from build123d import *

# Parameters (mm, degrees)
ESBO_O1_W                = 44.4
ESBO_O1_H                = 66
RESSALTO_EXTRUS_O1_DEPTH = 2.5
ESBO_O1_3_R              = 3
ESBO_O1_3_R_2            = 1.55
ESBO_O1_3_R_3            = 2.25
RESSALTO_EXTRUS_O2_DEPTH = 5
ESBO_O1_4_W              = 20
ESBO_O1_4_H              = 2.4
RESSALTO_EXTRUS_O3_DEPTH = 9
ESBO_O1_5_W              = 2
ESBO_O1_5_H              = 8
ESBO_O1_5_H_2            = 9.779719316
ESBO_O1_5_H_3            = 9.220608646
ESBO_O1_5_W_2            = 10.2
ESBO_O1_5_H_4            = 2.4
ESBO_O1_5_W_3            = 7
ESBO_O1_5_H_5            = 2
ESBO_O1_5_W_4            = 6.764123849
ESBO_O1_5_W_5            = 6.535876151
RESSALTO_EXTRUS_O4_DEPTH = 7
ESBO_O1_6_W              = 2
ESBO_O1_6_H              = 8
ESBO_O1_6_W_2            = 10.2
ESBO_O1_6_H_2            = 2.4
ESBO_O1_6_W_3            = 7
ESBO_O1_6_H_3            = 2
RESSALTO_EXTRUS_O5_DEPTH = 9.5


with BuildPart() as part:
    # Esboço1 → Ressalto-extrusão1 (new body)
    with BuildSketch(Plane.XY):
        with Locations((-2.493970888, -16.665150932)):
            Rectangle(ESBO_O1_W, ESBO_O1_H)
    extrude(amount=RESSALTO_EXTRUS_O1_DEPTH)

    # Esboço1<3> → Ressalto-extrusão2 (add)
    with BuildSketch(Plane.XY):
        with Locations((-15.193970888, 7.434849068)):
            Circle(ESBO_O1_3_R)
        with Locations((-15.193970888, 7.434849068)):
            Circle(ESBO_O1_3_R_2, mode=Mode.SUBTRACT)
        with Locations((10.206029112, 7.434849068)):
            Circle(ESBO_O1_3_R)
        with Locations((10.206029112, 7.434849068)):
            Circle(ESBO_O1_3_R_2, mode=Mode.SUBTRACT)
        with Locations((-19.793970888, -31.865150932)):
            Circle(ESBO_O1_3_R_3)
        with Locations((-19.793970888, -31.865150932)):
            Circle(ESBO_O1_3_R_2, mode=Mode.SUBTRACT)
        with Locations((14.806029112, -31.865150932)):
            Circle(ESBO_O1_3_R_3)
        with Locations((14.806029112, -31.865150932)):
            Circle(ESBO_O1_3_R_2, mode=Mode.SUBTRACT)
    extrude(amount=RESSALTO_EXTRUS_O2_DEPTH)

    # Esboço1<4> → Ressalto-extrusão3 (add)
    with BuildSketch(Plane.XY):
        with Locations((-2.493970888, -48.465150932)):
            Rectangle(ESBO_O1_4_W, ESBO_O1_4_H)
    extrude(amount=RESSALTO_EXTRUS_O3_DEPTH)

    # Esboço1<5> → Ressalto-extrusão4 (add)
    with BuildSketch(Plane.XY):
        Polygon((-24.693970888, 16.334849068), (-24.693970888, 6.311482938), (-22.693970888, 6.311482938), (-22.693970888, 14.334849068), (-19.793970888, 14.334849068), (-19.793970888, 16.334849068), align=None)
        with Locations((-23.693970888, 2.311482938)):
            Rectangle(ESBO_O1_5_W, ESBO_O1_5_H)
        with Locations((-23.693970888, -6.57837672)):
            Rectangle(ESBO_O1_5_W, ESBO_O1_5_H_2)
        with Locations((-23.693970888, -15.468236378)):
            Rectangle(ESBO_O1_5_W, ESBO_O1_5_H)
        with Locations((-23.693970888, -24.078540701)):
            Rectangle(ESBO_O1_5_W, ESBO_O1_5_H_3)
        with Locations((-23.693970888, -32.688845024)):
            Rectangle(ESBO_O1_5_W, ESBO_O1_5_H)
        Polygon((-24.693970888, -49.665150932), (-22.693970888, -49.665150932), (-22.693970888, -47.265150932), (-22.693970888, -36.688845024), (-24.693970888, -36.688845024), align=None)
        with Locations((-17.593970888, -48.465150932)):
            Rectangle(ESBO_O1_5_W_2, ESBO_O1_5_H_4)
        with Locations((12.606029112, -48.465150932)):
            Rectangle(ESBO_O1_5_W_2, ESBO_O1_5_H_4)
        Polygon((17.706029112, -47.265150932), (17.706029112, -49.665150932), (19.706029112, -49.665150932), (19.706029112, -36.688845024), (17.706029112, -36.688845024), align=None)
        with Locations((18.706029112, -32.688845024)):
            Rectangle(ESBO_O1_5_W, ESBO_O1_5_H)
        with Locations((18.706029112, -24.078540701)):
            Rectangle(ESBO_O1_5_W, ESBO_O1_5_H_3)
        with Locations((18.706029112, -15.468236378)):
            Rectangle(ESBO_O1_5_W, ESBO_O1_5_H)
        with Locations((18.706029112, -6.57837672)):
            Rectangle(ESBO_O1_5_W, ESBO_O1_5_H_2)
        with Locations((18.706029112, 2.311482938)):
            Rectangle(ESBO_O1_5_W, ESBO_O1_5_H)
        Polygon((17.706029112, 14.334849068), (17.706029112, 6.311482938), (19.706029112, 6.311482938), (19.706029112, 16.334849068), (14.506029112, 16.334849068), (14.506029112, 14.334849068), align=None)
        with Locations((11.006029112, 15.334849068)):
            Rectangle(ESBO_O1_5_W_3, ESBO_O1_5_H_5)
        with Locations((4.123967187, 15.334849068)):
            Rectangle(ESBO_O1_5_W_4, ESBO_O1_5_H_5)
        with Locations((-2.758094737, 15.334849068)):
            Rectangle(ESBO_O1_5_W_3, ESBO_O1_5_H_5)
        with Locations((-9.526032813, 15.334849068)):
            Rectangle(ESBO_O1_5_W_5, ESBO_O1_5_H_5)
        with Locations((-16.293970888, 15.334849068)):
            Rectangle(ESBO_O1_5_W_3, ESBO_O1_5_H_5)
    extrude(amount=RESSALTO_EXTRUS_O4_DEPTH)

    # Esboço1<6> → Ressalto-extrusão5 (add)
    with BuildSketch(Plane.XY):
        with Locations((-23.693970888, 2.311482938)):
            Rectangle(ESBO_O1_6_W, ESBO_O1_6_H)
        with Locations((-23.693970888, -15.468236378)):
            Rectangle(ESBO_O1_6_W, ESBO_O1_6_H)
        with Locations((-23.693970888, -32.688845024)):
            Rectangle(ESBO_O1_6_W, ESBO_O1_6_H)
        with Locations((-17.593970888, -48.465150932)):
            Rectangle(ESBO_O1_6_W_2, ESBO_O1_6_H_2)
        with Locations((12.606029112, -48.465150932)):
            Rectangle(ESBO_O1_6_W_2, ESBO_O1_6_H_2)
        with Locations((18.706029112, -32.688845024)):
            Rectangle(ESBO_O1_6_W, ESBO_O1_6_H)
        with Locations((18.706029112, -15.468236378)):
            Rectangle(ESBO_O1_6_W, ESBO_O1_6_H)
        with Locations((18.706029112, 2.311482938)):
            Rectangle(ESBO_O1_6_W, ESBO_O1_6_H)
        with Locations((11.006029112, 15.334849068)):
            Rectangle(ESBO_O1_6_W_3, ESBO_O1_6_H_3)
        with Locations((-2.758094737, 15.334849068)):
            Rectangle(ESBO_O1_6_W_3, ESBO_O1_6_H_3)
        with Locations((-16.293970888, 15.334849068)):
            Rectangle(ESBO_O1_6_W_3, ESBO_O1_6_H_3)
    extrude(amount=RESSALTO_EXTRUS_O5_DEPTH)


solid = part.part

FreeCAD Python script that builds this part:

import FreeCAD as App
import Part
import Sketcher
from FreeCAD import Vector
Q = App.Units.Quantity


def add_polygon(sketch, points):
    """Adds a closed chain of lines whose ends are joined by coincident constraints."""
    first, n = sketch.GeometryCount, len(points)
    for a, b in zip(points, points[1:] + points[:1]):
        sketch.addGeometry(Part.LineSegment(App.Vector(*a, 0), App.Vector(*b, 0)), False)
    for i in range(n):
        sketch.addConstraint(Sketcher.Constraint("Coincident", first + i, 2, first + (i + 1) % n, 1))

doc = App.newDocument("Part")
body = doc.addObject("PartDesign::Body", "Body")

# Sketch on XY plane
sketch1 = body.newObject("Sketcher::SketchObject", "Sketch")
sketch1.AttachmentSupport = (doc.getObject("XY_Plane"), [""])
sketch1.MapMode = "FlatFace"
add_polygon(sketch1, [(-24.693971, 16.334849), (-24.693971, -49.665151), (19.706029, -49.665151), (19.706029, 16.334849)])  # lines 0-3
sketch1.addConstraint([
    Sketcher.Constraint("Vertical", 0),
    Sketcher.Constraint("Horizontal", 1),
    Sketcher.Constraint("Vertical", 2),
    Sketcher.Constraint("Horizontal", 3),
    Sketcher.Constraint("DistanceY", 0, 2, 0, 1, Q("66 mm")),
    Sketcher.Constraint("DistanceX", 1, 1, 1, 2, Q("44.4 mm")),
    Sketcher.Constraint("DistanceX", 0, 2, -1, 1, Q("24.693971 mm")),
    Sketcher.Constraint("DistanceY", 0, 2, -1, 1, Q("49.665151 mm")),
])
pad1 = body.newObject("PartDesign::Pad", "Pad")
pad1.Profile = sketch1
pad1.Length = 2.5

# Sketch on XY plane
sketch2 = body.newObject("Sketcher::SketchObject", "Sketch001")
sketch2.AttachmentSupport = (doc.getObject("XY_Plane"), [""])
sketch2.MapMode = "FlatFace"
sketch2.addGeometry([
    Part.Circle(Vector(-15.193971, 7.434849, 0), Vector(0, 0, 1), 3),  # 0
    Part.Circle(Vector(-15.193971, 7.434849, 0), Vector(0, 0, 1), 1.55),  # 1
    Part.Circle(Vector(10.206029, 7.434849, 0), Vector(0, 0, 1), 3),  # 2
    Part.Circle(Vector(10.206029, 7.434849, 0), Vector(0, 0, 1), 1.55),  # 3
    Part.Circle(Vector(-19.793971, -31.865151, 0), Vector(0, 0, 1), 2.25),  # 4
    Part.Circle(Vector(-19.793971, -31.865151, 0), Vector(0, 0, 1), 1.55),  # 5
    Part.Circle(Vector(14.806029, -31.865151, 0), Vector(0, 0, 1), 2.25),  # 6
    Part.Circle(Vector(14.806029, -31.865151, 0), Vector(0, 0, 1), 1.55),  # 7
], False)
sketch2.addConstraint([
    Sketcher.Constraint("Coincident", 1, 3, 0, 3),
    Sketcher.Constraint("Coincident", 3, 3, 2, 3),
    Sketcher.Constraint("Coincident", 5, 3, 4, 3),
    Sketcher.Constraint("Coincident", 7, 3, 6, 3),
    Sketcher.Constraint("Equal", 0, 2),
    Sketcher.Constraint("Equal", 1, 3),
    Sketcher.Constraint("Equal", 3, 5),
    Sketcher.Constraint("Equal", 4, 6),
    Sketcher.Constraint("Equal", 5, 7),
    Sketcher.Constraint("Horizontal", 1, 3, 2, 3),
    Sketcher.Constraint("Horizontal", 5, 3, 6, 3),
    Sketcher.Constraint("Diameter", 0, Q("6 mm")),
    Sketcher.Constraint("Diameter", 1, Q("3.1 mm")),
    Sketcher.Constraint("Diameter", 4, Q("4.5 mm")),
    Sketcher.Constraint("DistanceX", 4, 3, 2, 3, Q("30 mm")),
    Sketcher.Constraint("DistanceX", 0, 3, 6, 3, Q("30 mm")),
    Sketcher.Constraint("DistanceX", 0, 3, 2, 3, Q("25.4 mm")),
    Sketcher.Constraint("DistanceY", 4, 3, 0, 3, Q("39.3 mm")),
    Sketcher.Constraint("DistanceX", 0, 3, -1, 1, Q("15.193971 mm")),
    Sketcher.Constraint("DistanceY", -1, 1, 0, 3, Q("7.434849 mm")),
])
pad2 = body.newObject("PartDesign::Pad", "Pad001")
pad2.Profile = sketch2
pad2.Length = 5

# Sketch on XY plane
sketch3 = body.newObject("Sketcher::SketchObject", "Sketch002")
sketch3.AttachmentSupport = (doc.getObject("XY_Plane"), [""])
sketch3.MapMode = "FlatFace"
add_polygon(sketch3, [(-12.493971, -47.265151), (-12.493971, -49.665151), (7.506029, -49.665151), (7.506029, -47.265151)])  # lines 0-3
sketch3.addConstraint([
    Sketcher.Constraint("Vertical", 0),
    Sketcher.Constraint("Horizontal", 1),
    Sketcher.Constraint("Vertical", 2),
    Sketcher.Constraint("Horizontal", 3),
    Sketcher.Constraint("DistanceX", 1, 1, 1, 2, Q("20 mm")),
    Sketcher.Constraint("DistanceY", 0, 2, 0, 1, Q("2.4 mm")),
    Sketcher.Constraint("DistanceX", 0, 2, -1, 1, Q("12.493971 mm")),
    Sketcher.Constraint("DistanceY", 0, 2, -1, 1, Q("49.665151 mm")),
])
pad3 = body.newObject("PartDesign::Pad", "Pad002")
pad3.Profile = sketch3
pad3.Length = 9

# Sketch on XY plane
sketch4 = body.newObject("Sketcher::SketchObject", "Sketch003")
sketch4.AttachmentSupport = (doc.getObject("XY_Plane"), [""])
sketch4.MapMode = "FlatFace"
add_polygon(sketch4, [(-24.693971, 16.334849), (-24.693971, -49.665151), (-12.493971, -49.665151), (-12.493971, -47.265151), (-22.693971, -47.265151), (-22.693971, 14.334849), (17.706029, 14.334849), (17.706029, -47.265151), (7.506029, -47.265151), (7.506029, -49.665151), (19.706029, -49.665151), (19.706029, 16.334849)])  # lines 0-11
sketch4.addConstraint([
    Sketcher.Constraint("Vertical", 0),
    Sketcher.Constraint("Horizontal", 1),
    Sketcher.Constraint("Vertical", 2),
    Sketcher.Constraint("Horizontal", 3),
    Sketcher.Constraint("Vertical", 4),
    Sketcher.Constraint("Horizontal", 5),
    Sketcher.Constraint("Vertical", 6),
    Sketcher.Constraint("Horizontal", 7),
    Sketcher.Constraint("Vertical", 8),
    Sketcher.Constraint("Horizontal", 9),
    Sketcher.Constraint("Vertical", 10),
    Sketcher.Constraint("Horizontal", 11),
    Sketcher.Constraint("Horizontal", 3, 2, 6, 2),
    Sketcher.Constraint("Horizontal", 1, 2, 8, 2),
    Sketcher.Constraint("Equal", 3, 7),
    Sketcher.Constraint("Equal", 1, 9),
    Sketcher.Constraint("DistanceY", 0, 2, 0, 1, Q("66 mm")),
    Sketcher.Constraint("DistanceX", 1, 1, 1, 2, Q("12.2 mm")),
    Sketcher.Constraint("DistanceX", 3, 2, 3, 1, Q("10.2 mm")),
    Sketcher.Constraint("DistanceX", 5, 1, 5, 2, Q("40.4 mm")),
    Sketcher.Constraint("DistanceY", 2, 1, 2, 2, Q("2.4 mm")),
    Sketcher.Constraint("DistanceY", 4, 1, 4, 2, Q("61.6 mm")),
    Sketcher.Constraint("DistanceX", 0, 2, -1, 1, Q("24.693971 mm")),
    Sketcher.Constraint("DistanceY", 0, 2, -1, 1, Q("49.665151 mm")),
])
pad4 = body.newObject("PartDesign::Pad", "Pad003")
pad4.Profile = sketch4
pad4.Length = 7

# Sketch on XY plane
sketch5 = body.newObject("Sketcher::SketchObject", "Sketch004")
sketch5.AttachmentSupport = (doc.getObject("XY_Plane"), [""])
sketch5.MapMode = "FlatFace"
add_polygon(sketch5, [(-24.693971, 6.311483), (-24.693971, -1.688517), (-22.693971, -1.688517), (-22.693971, 6.311483)])  # lines 0-3
add_polygon(sketch5, [(-24.693971, -11.468236), (-24.693971, -19.468236), (-22.693971, -19.468236), (-22.693971, -11.468236)])  # lines 4-7
add_polygon(sketch5, [(-24.693971, -28.688845), (-24.693971, -36.688845), (-22.693971, -36.688845), (-22.693971, -28.688845)])  # lines 8-11
add_polygon(sketch5, [(-22.693971, -47.265151), (-22.693971, -49.665151), (-12.493971, -49.665151), (-12.493971, -47.265151)])  # lines 12-15
add_polygon(sketch5, [(7.506029, -47.265151), (7.506029, -49.665151), (17.706029, -49.665151), (17.706029, -47.265151)])  # lines 16-19
add_polygon(sketch5, [(17.706029, -28.688845), (17.706029, -36.688845), (19.706029, -36.688845), (19.706029, -28.688845)])  # lines 20-23
add_polygon(sketch5, [(17.706029, -11.468236), (17.706029, -19.468236), (19.706029, -19.468236), (19.706029, -11.468236)])  # lines 24-27
add_polygon(sketch5, [(17.706029, 6.311483), (17.706029, -1.688517), (19.706029, -1.688517), (19.706029, 6.311483)])  # lines 28-31
add_polygon(sketch5, [(7.506029, 16.334849), (7.506029, 14.334849), (14.506029, 14.334849), (14.506029, 16.334849)])  # lines 32-35
add_polygon(sketch5, [(-6.258095, 16.334849), (-6.258095, 14.334849), (0.741905, 14.334849), (0.741905, 16.334849)])  # lines 36-39
add_polygon(sketch5, [(-19.793971, 16.334849), (-19.793971, 14.334849), (-12.793971, 14.334849), (-12.793971, 16.334849)])  # lines 40-43
sketch5.addConstraint([
    Sketcher.Constraint("Vertical", 0),
    Sketcher.Constraint("Horizontal", 1),
    Sketcher.Constraint("Vertical", 2),
    Sketcher.Constraint("Horizontal", 3),
    Sketcher.Constraint("Vertical", 4),
    Sketcher.Constraint("Horizontal", 5),
    Sketcher.Constraint("Vertical", 6),
    Sketcher.Constraint("Horizontal", 7),
    Sketcher.Constraint("Vertical", 8),
    Sketcher.Constraint("Horizontal", 9),
    Sketcher.Constraint("Vertical", 10),
    Sketcher.Constraint("Horizontal", 11),
    Sketcher.Constraint("Vertical", 12),
    Sketcher.Constraint("Horizontal", 13),
    Sketcher.Constraint("Vertical", 14),
    Sketcher.Constraint("Horizontal", 15),
    Sketcher.Constraint("Vertical", 16),
    Sketcher.Constraint("Horizontal", 17),
    Sketcher.Constraint("Vertical", 18),
    Sketcher.Constraint("Horizontal", 19),
    Sketcher.Constraint("Vertical", 20),
    Sketcher.Constraint("Horizontal", 21),
    Sketcher.Constraint("Vertical", 22),
    Sketcher.Constraint("Horizontal", 23),
    Sketcher.Constraint("Vertical", 24),
    Sketcher.Constraint("Horizontal", 25),
    Sketcher.Constraint("Vertical", 26),
    Sketcher.Constraint("Horizontal", 27),
    Sketcher.Constraint("Vertical", 28),
    Sketcher.Constraint("Horizontal", 29),
    Sketcher.Constraint("Vertical", 30),
    Sketcher.Constraint("Horizontal", 31),
    Sketcher.Constraint("Vertical", 32),
    Sketcher.Constraint("Horizontal", 33),
    Sketcher.Constraint("Vertical", 34),
    Sketcher.Constraint("Horizontal", 35),
    Sketcher.Constraint("Vertical", 36),
    Sketcher.Constraint("Horizontal", 37),
    Sketcher.Constraint("Vertical", 38),
    Sketcher.Constraint("Horizontal", 39),
    Sketcher.Constraint("Vertical", 40),
    Sketcher.Constraint("Horizontal", 41),
    Sketcher.Constraint("Vertical", 42),
    Sketcher.Constraint("Horizontal", 43),
    Sketcher.Constraint("Horizontal", 13, 2, 16, 2),
    Sketcher.Constraint("Horizontal", 15, 2, 18, 2),
    Sketcher.Constraint("Horizontal", 9, 2, 20, 2),
    Sketcher.Constraint("Horizontal", 11, 2, 22, 2),
    Sketcher.Constraint("Horizontal", 5, 2, 24, 2),
    Sketcher.Constraint("Horizontal", 7, 2, 26, 2),
    Sketcher.Constraint("Horizontal", 1, 2, 28, 2),
    Sketcher.Constraint("Horizontal", 3, 2, 30, 2),
    Sketcher.Constraint("Horizontal", 33, 2, 36, 2),
    Sketcher.Constraint("Horizontal", 35, 2, 38, 2),
    Sketcher.Constraint("Horizontal", 37, 2, 40, 2),
    Sketcher.Constraint("Horizontal", 39, 2, 42, 2),
    Sketcher.Constraint("Vertical", 3, 2, 4, 2),
    Sketcher.Constraint("Vertical", 2, 2, 5, 2),
    Sketcher.Constraint("Vertical", 7, 2, 8, 2),
    Sketcher.Constraint("Vertical", 6, 2, 9, 2),
    Sketcher.Constraint("Vertical", 10, 2, 12, 2),
    Sketcher.Constraint("Vertical", 18, 2, 20, 2),
    Sketcher.Constraint("Vertical", 23, 2, 24, 2),
    Sketcher.Constraint("Vertical", 22, 2, 25, 2),
    Sketcher.Constraint("Vertical", 27, 2, 28, 2),
    Sketcher.Constraint("Vertical", 26, 2, 29, 2),
    Sketcher.Constraint("Vertical", 19, 2, 32, 2),
    Sketcher.Constraint("Equal", 15, 17),
    Sketcher.Constraint("Equal", 11, 21),
    Sketcher.Constraint("Equal", 35, 37),
    Sketcher.Constraint("Equal", 39, 41),
    Sketcher.Constraint("Equal", 2, 4),
    Sketcher.Constraint("Equal", 6, 8),
    Sketcher.Constraint("Equal", 31, 32),
    Sketcher.Constraint("DistanceX", 1, 1, 1, 2, Q("2 mm")),
    Sketcher.Constraint("DistanceX", 33, 1, 33, 2, Q("7 mm")),
    Sketcher.Constraint("DistanceY", 0, 2, 0, 1, Q("8 mm")),
    Sketcher.Constraint("DistanceX", 13, 1, 13, 2, Q("10.2 mm")),
    Sketcher.Constraint("DistanceY", 12, 2, 12, 1, Q("2.4 mm")),
    Sketcher.Constraint("DistanceX", 13, 2, 16, 2, Q("20 mm")),
    Sketcher.Constraint("DistanceX", 2, 2, 40, 2, Q("2.9 mm")),
    Sketcher.Constraint("DistanceX", 0, 2, -1, 1, Q("24.693971 mm")),
    Sketcher.Constraint("DistanceY", 12, 2, -1, 1, Q("49.665151 mm")),
    Sketcher.Constraint("DistanceY", -1, 1, 32, 2, Q("14.334849 mm")),
    Sketcher.Constraint("DistanceY", 4, 2, 0, 2, Q("17.779719 mm")),
    Sketcher.Constraint("DistanceY", 8, 2, 4, 2, Q("17.220609 mm")),
    Sketcher.Constraint("DistanceY", 0, 2, -1, 1, Q("1.688517 mm")),
    Sketcher.Constraint("DistanceX", 36, 2, -1, 1, Q("6.258095 mm")),
])
pad5 = body.newObject("PartDesign::Pad", "Pad004")
pad5.Profile = sketch5
pad5.Length = 9.5

doc.recompute()
